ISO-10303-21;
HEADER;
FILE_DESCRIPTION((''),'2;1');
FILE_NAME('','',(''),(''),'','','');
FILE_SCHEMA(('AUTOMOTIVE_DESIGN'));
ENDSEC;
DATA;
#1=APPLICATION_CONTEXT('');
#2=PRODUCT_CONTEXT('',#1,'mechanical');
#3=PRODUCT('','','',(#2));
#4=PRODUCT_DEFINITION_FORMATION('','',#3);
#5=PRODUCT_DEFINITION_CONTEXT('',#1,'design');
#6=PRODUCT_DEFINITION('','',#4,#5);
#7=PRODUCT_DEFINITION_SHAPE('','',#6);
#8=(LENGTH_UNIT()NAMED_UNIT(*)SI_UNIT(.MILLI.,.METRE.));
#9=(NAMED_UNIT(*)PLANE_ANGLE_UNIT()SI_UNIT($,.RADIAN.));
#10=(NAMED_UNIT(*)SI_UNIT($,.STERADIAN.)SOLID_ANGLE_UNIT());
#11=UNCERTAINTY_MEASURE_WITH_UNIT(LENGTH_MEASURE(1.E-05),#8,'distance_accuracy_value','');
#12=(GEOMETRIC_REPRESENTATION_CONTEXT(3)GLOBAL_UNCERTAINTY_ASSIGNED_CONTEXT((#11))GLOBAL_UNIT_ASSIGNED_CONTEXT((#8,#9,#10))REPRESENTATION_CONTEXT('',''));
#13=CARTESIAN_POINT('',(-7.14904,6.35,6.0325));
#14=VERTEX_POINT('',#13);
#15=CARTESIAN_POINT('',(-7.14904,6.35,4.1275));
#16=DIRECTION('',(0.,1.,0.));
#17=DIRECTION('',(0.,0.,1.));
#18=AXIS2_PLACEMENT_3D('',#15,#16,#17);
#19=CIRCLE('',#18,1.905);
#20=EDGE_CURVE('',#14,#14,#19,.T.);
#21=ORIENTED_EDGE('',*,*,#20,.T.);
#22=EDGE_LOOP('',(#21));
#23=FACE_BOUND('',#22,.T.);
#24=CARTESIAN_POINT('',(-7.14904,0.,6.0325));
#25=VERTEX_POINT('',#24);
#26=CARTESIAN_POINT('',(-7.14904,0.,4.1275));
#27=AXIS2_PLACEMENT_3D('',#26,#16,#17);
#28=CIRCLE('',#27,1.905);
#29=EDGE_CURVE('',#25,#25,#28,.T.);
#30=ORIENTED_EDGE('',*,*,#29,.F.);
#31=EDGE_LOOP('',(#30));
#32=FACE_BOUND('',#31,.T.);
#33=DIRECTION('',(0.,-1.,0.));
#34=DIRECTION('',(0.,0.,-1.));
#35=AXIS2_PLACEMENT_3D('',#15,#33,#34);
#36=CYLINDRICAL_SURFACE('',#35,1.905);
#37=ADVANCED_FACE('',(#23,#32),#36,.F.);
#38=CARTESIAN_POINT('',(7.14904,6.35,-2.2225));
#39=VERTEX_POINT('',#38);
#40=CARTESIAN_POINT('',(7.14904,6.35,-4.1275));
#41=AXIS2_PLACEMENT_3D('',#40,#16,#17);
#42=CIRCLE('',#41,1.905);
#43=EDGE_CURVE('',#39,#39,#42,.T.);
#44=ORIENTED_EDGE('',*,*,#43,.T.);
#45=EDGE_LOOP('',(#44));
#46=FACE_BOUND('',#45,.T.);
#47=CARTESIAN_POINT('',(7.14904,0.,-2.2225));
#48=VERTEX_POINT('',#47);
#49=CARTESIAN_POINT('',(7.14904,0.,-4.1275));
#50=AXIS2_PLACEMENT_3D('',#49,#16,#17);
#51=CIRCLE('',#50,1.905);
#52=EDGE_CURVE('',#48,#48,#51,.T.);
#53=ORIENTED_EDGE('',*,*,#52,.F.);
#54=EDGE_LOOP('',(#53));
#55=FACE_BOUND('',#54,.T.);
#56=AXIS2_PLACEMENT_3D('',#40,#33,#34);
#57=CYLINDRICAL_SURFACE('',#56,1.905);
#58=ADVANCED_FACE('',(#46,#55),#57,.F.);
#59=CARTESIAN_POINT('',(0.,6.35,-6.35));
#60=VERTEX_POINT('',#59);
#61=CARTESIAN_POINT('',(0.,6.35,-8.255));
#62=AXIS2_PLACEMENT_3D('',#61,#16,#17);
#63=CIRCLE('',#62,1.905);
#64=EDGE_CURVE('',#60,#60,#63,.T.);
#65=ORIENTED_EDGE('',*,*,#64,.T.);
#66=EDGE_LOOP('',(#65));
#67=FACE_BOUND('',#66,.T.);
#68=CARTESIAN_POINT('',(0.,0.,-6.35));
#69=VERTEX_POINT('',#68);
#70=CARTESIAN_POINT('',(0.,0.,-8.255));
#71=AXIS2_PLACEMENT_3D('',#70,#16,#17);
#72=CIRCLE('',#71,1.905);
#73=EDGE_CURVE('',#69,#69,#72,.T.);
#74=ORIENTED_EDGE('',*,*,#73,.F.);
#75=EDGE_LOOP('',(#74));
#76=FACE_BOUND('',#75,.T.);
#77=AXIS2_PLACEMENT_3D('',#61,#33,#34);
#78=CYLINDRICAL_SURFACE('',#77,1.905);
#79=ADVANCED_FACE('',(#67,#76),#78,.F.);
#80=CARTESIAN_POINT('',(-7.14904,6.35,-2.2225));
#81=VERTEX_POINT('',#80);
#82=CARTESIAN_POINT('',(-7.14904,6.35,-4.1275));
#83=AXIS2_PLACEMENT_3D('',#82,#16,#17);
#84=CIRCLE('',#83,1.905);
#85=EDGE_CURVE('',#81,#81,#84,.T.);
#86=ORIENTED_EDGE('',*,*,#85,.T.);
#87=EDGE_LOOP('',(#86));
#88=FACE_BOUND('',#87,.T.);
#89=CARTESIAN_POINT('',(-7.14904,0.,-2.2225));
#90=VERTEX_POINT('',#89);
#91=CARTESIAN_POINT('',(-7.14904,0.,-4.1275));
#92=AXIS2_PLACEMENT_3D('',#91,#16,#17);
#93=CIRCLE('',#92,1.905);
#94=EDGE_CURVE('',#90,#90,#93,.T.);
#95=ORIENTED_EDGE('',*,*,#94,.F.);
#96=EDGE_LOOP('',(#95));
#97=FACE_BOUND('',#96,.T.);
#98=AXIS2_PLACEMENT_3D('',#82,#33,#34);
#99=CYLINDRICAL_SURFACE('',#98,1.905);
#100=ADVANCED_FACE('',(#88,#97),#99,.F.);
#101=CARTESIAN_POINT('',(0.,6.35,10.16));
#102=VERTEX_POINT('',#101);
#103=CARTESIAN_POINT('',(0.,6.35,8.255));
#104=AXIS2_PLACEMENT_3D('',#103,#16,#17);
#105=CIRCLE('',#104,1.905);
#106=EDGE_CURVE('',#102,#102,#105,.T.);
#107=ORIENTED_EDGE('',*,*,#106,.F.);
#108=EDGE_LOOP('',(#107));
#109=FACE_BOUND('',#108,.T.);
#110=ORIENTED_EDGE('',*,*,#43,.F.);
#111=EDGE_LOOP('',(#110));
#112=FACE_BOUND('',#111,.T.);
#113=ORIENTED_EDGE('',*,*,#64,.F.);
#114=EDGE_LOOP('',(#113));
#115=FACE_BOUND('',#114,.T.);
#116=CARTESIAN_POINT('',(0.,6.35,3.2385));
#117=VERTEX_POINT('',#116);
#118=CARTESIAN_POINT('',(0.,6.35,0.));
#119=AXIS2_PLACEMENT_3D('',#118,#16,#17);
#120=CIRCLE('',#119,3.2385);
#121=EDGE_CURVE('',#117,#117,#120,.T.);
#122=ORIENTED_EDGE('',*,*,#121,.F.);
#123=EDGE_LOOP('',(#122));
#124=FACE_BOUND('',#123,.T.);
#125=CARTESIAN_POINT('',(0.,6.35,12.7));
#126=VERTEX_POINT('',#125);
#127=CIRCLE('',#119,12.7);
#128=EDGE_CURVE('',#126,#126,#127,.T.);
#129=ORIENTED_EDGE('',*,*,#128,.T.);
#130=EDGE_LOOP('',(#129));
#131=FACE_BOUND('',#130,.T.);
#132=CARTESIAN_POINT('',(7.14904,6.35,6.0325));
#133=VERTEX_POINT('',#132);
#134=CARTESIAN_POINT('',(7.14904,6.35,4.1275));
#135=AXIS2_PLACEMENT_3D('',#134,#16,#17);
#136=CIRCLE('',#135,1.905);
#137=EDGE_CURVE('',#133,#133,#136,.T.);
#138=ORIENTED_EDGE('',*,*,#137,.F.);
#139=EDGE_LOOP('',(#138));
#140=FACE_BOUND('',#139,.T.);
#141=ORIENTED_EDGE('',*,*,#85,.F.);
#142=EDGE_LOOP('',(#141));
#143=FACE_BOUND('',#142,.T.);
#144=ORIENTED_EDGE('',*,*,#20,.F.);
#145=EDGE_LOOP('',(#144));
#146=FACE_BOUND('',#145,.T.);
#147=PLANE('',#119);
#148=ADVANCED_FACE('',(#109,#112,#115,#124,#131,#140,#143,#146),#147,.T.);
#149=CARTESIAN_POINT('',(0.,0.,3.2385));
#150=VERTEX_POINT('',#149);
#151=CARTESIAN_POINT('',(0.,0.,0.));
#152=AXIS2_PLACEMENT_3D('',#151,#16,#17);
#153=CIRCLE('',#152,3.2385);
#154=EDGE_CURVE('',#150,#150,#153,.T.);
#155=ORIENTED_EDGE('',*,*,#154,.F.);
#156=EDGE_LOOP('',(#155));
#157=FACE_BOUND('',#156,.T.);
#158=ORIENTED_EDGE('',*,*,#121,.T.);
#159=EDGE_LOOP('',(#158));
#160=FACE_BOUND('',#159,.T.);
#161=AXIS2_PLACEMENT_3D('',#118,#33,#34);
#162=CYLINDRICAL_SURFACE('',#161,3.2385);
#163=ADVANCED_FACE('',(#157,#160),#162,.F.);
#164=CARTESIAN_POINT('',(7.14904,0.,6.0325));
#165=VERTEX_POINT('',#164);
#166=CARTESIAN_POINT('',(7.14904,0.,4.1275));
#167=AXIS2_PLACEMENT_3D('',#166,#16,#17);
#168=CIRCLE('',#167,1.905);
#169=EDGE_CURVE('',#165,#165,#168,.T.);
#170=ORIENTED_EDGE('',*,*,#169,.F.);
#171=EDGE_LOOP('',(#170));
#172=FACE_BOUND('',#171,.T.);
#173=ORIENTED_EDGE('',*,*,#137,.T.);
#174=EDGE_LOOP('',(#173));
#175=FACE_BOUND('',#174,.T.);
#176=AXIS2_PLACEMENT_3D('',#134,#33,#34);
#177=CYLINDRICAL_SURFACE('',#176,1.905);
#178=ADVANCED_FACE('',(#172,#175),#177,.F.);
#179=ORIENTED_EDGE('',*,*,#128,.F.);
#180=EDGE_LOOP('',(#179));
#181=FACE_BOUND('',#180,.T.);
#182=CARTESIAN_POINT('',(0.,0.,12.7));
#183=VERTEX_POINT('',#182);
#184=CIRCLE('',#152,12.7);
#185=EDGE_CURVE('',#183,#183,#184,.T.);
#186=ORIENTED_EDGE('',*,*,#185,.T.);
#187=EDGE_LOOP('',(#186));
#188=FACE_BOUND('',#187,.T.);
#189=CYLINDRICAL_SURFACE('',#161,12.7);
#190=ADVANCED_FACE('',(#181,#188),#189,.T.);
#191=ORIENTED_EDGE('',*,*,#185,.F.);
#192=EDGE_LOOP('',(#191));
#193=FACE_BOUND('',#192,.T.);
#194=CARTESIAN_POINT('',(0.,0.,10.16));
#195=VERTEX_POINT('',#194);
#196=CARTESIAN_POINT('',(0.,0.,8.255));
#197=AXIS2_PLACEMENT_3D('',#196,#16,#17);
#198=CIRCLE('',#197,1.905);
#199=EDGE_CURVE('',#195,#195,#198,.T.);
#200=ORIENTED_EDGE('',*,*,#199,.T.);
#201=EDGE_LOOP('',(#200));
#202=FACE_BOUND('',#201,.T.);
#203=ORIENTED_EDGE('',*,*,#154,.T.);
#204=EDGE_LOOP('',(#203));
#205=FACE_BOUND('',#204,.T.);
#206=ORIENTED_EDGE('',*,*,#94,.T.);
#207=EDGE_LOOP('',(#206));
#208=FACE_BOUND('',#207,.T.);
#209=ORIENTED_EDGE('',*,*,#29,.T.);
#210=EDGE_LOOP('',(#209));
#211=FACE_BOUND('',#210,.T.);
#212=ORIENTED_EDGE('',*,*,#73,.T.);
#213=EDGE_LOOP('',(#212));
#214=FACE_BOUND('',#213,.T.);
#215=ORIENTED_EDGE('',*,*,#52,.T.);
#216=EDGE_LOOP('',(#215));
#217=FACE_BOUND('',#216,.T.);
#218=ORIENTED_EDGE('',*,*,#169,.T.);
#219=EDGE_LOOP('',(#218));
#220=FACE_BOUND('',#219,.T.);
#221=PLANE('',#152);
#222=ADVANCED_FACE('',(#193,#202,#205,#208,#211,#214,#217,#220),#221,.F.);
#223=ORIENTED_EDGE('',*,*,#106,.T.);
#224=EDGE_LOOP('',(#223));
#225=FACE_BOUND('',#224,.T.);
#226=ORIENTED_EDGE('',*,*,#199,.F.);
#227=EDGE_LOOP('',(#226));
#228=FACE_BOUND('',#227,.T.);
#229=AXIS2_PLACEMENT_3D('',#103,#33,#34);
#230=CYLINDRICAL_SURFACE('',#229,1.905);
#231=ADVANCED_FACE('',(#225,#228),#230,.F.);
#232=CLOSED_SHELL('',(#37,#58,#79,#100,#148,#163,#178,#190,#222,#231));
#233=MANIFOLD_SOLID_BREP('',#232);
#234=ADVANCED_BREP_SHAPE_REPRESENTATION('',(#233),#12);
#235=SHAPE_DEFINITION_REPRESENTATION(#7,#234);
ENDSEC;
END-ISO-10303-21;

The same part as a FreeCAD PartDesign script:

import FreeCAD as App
import Part
import Sketcher

V = App.Vector
Q = App.Units.Quantity

doc = App.newDocument("Part")
body = doc.addObject("PartDesign::Body", "Body")

sketch1 = body.newObject("Sketcher::SketchObject", "Sketch")
sketch1.AttachmentSupport = (doc.getObject("XZ_Plane"), [""])
sketch1.MapMode = "FlatFace"
sketch1.addGeometry([
    Part.Circle(V(0, 0, 0), V(0, 0, 1), 12.7),
    Part.Circle(V(-7.1, -4.1, 0), V(0, 0, 1), 1.9),
    Part.Circle(V(0, -8.3, 0), V(0, 0, 1), 1.9),
    Part.Circle(V(0, 0, 0), V(0, 0, 1), 3.2),
    Part.Circle(V(-7.1, 4.1, 0), V(0, 0, 1), 1.9),
    Part.Circle(V(7.1, -4.1, 0), V(0, 0, 1), 1.9),
    Part.Circle(V(0, 8.3, 0), V(0, 0, 1), 1.9),
    Part.Circle(V(7.1, 4.1, 0), V(0, 0, 1), 1.9),
], False)
sketch1.addConstraint([
    Sketcher.Constraint("Coincident", 0, 3, -1, 1),
    Sketcher.Constraint("Coincident", 3, 3, -1, 1),
    Sketcher.Constraint("Equal", 1, 2),
    Sketcher.Constraint("Equal", 2, 4),
    Sketcher.Constraint("Equal", 4, 5),
    Sketcher.Constraint("Equal", 5, 6),
    Sketcher.Constraint("Equal", 6, 7),
    Sketcher.Constraint("Symmetric", 4, 3, 5, 3, -1, 1),
    Sketcher.Constraint("Symmetric", 2, 3, 6, 3, -1, 1),
    Sketcher.Constraint("Symmetric", 1, 3, 7, 3, -1, 1),
    Sketcher.Constraint("Symmetric", 1, 3, 5, 3, -2),
    Sketcher.Constraint("PointOnObject", 2, 3, -2),
    Sketcher.Constraint("Diameter", 0, Q("1 in")),
    Sketcher.Constraint("Diameter", 1, Q("0.15 in")),
    Sketcher.Constraint("Diameter", 3, Q("0.255 in")),
    Sketcher.Constraint("DistanceY", 2, 3, -1, 1, Q("0.325 in")),
    Sketcher.Constraint("DistanceY", 1, 3, 4, 3, Q("0.325 in")),
    Sketcher.Constraint("DistanceX", 1, 3, -1, 1, Q("7.14904 mm")),
])
pad1 = body.newObject("PartDesign::Pad", "Pad")
pad1.Profile = sketch1
pad1.Length = Q("0.25 in")
pad1.Reversed = True

doc.recompute()
